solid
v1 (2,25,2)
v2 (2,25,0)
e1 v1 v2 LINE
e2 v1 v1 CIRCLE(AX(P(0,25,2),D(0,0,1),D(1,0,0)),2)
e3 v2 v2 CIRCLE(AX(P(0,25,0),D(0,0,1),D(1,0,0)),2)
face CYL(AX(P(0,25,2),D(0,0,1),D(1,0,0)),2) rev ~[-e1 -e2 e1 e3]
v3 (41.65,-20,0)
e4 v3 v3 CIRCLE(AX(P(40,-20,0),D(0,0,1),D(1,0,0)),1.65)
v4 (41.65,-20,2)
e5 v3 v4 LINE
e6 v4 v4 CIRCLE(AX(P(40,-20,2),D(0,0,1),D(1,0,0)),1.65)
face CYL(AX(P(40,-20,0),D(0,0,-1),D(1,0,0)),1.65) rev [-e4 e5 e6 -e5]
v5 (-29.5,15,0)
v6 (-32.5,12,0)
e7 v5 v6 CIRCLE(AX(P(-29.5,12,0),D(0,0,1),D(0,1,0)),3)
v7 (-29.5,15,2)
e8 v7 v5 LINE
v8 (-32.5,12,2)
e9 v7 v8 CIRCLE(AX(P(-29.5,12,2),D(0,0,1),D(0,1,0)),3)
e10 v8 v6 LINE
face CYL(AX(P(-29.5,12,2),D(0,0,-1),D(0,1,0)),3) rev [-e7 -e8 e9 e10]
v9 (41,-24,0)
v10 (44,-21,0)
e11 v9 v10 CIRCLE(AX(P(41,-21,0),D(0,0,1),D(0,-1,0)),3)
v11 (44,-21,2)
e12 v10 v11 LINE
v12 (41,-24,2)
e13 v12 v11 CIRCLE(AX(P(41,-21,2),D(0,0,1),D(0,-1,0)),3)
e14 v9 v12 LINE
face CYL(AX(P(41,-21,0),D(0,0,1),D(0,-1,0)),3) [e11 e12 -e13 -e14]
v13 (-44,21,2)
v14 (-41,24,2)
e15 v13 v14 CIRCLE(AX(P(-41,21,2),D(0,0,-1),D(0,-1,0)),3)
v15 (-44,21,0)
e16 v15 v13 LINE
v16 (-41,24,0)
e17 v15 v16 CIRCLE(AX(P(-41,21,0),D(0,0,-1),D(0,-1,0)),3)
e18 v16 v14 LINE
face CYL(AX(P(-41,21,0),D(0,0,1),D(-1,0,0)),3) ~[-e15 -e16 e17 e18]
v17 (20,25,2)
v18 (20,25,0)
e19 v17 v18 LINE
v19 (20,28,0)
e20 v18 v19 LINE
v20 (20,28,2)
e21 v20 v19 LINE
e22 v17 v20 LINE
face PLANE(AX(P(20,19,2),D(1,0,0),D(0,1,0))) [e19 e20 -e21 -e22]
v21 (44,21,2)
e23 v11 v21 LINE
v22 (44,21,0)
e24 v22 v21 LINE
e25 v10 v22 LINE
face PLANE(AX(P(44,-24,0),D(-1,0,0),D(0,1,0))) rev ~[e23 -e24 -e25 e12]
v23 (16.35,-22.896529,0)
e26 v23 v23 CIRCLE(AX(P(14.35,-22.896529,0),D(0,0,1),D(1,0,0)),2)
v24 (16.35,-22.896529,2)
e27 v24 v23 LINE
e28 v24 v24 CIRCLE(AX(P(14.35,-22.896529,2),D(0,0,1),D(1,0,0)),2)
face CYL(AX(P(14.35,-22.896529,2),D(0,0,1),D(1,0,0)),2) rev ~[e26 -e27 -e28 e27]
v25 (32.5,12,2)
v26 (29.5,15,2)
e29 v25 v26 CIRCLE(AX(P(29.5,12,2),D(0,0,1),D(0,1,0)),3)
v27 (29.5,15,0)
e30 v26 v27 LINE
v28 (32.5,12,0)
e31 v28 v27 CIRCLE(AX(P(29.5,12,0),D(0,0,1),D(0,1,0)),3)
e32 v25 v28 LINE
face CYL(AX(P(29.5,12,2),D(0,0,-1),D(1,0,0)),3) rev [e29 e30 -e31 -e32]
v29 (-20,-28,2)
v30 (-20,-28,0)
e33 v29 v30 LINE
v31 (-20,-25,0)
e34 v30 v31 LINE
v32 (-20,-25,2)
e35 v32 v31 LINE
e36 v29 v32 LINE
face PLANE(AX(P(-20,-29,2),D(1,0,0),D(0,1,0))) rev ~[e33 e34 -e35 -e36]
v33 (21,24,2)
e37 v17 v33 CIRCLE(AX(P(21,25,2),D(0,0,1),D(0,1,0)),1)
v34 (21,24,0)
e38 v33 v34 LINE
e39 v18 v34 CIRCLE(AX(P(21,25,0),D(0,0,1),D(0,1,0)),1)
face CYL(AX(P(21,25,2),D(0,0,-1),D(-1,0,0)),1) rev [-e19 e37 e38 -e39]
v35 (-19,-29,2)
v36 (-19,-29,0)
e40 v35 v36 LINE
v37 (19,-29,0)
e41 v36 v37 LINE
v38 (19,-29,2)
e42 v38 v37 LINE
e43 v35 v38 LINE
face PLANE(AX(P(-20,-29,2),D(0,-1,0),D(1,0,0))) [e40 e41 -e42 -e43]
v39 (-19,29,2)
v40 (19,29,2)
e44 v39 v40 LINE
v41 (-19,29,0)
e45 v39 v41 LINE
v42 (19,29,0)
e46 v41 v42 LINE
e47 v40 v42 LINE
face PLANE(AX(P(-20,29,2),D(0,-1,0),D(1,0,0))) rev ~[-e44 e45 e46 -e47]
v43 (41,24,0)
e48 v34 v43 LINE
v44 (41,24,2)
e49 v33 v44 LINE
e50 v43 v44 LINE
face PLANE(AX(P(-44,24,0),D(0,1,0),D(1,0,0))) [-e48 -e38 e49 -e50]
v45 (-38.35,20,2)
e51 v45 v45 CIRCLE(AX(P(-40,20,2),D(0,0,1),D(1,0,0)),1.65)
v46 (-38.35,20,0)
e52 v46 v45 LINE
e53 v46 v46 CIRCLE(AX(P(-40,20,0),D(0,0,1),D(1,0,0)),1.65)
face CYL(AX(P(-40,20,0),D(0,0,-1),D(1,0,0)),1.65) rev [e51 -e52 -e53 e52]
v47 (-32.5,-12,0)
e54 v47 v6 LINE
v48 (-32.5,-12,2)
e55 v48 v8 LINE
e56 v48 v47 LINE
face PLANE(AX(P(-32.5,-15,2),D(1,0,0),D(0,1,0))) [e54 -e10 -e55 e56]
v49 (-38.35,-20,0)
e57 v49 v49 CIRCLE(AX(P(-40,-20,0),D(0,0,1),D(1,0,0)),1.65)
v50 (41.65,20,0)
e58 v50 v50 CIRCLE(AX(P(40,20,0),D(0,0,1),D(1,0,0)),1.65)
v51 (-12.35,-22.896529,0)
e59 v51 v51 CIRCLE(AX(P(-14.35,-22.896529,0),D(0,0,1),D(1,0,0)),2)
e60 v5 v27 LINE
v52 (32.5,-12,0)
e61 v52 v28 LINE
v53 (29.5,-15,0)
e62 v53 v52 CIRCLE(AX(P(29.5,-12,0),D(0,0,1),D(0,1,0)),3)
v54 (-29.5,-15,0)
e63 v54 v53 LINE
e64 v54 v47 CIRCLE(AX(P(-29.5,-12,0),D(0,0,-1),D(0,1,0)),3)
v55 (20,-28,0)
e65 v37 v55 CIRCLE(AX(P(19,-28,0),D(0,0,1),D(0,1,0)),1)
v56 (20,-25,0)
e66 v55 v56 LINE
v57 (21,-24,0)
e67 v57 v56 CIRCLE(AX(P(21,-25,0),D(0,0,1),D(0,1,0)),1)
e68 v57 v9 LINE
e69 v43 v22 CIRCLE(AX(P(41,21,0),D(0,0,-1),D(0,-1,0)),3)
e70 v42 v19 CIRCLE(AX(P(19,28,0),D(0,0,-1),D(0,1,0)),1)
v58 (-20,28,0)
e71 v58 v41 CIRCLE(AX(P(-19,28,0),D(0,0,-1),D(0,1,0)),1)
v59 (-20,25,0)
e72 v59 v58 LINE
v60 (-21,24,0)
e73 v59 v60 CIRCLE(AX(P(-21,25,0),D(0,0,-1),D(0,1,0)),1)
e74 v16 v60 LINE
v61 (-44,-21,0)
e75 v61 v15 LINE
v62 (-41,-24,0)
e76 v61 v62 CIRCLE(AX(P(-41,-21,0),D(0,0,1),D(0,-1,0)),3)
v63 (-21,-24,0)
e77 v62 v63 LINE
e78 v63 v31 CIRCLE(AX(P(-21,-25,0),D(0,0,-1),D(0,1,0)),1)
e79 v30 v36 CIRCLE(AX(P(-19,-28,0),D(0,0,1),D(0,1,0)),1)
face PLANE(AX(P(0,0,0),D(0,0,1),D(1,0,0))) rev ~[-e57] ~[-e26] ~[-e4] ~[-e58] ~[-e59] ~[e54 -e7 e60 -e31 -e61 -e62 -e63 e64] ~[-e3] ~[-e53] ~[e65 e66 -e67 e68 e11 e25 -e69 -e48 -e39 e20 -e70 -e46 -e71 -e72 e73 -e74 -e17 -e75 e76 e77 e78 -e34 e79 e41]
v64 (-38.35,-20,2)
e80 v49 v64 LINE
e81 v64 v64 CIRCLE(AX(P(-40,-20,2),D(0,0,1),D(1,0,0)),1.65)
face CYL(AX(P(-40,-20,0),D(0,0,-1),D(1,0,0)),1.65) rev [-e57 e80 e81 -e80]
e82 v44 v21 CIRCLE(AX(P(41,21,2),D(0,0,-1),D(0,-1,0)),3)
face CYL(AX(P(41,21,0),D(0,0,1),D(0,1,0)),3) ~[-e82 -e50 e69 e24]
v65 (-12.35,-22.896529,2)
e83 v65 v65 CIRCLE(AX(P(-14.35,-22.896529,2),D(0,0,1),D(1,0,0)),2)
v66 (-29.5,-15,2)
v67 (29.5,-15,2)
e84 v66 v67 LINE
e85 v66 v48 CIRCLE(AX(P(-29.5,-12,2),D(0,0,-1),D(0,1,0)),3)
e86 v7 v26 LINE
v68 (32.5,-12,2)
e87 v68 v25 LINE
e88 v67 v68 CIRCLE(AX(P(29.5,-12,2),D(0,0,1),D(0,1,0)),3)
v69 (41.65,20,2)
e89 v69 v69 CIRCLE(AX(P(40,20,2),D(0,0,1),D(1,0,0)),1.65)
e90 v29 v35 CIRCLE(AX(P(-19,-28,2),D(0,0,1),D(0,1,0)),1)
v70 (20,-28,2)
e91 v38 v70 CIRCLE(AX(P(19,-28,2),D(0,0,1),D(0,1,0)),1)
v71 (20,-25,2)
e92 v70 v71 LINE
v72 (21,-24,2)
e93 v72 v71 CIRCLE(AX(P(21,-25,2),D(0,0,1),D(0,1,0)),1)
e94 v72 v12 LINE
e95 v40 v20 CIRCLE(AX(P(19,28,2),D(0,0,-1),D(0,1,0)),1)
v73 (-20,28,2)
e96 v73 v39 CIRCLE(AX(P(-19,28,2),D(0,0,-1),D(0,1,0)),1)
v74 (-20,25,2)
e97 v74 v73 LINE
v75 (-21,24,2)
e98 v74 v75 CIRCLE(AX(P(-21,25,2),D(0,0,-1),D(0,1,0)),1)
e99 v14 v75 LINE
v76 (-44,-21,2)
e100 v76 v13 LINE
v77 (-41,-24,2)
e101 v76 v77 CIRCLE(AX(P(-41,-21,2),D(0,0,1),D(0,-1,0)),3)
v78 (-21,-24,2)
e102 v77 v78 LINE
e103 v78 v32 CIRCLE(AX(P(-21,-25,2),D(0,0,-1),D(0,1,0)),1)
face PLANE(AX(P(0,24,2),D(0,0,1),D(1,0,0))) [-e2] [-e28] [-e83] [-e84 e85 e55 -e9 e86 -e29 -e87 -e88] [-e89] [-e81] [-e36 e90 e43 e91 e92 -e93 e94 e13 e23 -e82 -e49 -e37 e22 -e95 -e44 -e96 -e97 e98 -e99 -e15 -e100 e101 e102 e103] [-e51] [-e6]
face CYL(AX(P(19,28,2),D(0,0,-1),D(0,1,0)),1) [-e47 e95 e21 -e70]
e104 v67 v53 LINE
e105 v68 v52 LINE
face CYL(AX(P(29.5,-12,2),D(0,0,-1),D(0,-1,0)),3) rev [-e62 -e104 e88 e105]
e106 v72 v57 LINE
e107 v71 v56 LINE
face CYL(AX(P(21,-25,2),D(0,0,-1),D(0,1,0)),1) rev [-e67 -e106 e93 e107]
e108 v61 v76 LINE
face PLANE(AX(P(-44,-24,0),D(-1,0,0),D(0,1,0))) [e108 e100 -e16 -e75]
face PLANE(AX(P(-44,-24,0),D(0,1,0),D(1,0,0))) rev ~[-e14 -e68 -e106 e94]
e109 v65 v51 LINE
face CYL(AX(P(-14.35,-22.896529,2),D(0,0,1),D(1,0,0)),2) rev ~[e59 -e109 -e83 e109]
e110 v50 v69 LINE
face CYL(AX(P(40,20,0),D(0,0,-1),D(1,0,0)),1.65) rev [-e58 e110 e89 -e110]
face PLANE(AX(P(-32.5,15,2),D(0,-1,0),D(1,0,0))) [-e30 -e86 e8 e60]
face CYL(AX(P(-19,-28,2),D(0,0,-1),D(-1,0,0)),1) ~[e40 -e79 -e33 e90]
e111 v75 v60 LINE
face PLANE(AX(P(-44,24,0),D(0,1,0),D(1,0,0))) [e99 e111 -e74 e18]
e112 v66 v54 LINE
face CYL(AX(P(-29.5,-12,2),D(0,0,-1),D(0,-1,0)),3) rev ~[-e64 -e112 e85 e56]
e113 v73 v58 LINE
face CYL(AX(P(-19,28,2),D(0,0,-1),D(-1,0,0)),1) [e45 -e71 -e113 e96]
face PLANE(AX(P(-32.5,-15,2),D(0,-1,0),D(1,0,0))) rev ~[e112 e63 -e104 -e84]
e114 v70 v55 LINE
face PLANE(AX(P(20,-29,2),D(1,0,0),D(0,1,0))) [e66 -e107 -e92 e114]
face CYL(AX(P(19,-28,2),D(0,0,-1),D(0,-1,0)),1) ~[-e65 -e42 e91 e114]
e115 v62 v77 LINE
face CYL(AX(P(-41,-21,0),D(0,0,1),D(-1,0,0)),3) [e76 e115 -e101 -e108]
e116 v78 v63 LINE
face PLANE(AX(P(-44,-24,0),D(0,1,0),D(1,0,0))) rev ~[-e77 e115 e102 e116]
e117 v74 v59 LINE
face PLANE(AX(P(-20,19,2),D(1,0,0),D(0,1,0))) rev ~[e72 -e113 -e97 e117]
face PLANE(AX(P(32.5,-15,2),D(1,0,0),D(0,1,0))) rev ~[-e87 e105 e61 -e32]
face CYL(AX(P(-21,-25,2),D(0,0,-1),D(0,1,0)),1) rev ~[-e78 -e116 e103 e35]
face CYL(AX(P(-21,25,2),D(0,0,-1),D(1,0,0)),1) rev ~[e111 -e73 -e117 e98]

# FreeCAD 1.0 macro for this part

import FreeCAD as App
import Part
import Sketcher


def edges_at(feature, points):
    """Names of the edges that pass closest to the given points."""
    edges = feature.Shape.Edges
    near = lambda p: min(range(len(edges)), key=lambda i: edges[i].distToShape(Part.Vertex(*p))[0])
    return sorted({f"Edge{near(p) + 1}" for p in points})


def add_polygon(sketch, points):
    """Adds a closed chain of lines whose ends are joined by coincident constraints."""
    first, n = sketch.GeometryCount, len(points)
    for a, b in zip(points, points[1:] + points[:1]):
        sketch.addGeometry(Part.LineSegment(App.Vector(*a, 0), App.Vector(*b, 0)), False)
    for i in range(n):
        sketch.addConstraint(Sketcher.Constraint("Coincident", first + i, 2, first + (i + 1) % n, 1))

doc = App.newDocument("Part")
body = doc.addObject("PartDesign::Body", "Body")

# Sketch on XY plane
sketch1 = doc.addObject("Sketcher::SketchObject", "Sketch")
body.addObject(sketch1)
sketch1.AttachmentSupport = (doc.XY_Plane, [""])
sketch1.MapMode = "FlatFace"
add_polygon(sketch1, [(-44, 24), (-44, -24), (44, -24), (44, 24)])  # lines 0-3
sketch1.addGeometry(Part.Circle(App.Vector(-40, -20, 0), App.Vector(0, 0, 1), 1.6), False)  # 4
sketch1.addGeometry(Part.Circle(App.Vector(40, -20, 0), App.Vector(0, 0, 1), 1.6), False)  # 5
sketch1.addGeometry(Part.Circle(App.Vector(-40, 20, 0), App.Vector(0, 0, 1), 1.6), False)  # 6
sketch1.addGeometry(Part.Circle(App.Vector(40, 20, 0), App.Vector(0, 0, 1), 1.6), False)  # 7
sketch1.addConstraint(Sketcher.Constraint("Vertical", 0))
sketch1.addConstraint(Sketcher.Constraint("Horizontal", 1))
sketch1.addConstraint(Sketcher.Constraint("Vertical", 2))
sketch1.addConstraint(Sketcher.Constraint("Horizontal", 3))
sketch1.addConstraint(Sketcher.Constraint("Equal", 4, 5))
sketch1.addConstraint(Sketcher.Constraint("Equal", 5, 6))
sketch1.addConstraint(Sketcher.Constraint("Equal", 6, 7))
sketch1.addConstraint(Sketcher.Constraint("Symmetric", 5, 3, 6, 3, -1, 1))
sketch1.addConstraint(Sketcher.Constraint("Symmetric", 4, 3, 7, 3, -1, 1))
sketch1.addConstraint(Sketcher.Constraint("Symmetric", 0, 2, 2, 2, -1, 1))
sketch1.addConstraint(Sketcher.Constraint("Symmetric", 4, 3, 5, 3, -2))
sketch1.addConstraint(Sketcher.Constraint("Diameter", 4, 3.3))
sketch1.addConstraint(Sketcher.Constraint("DistanceX", 1, 1, 1, 2, 88.0))
sketch1.addConstraint(Sketcher.Constraint("DistanceY", 0, 2, 0, 1, 48.0))
sketch1.addConstraint(Sketcher.Constraint("DistanceX", 4, 3, -1, 1, 40.0))
sketch1.addConstraint(Sketcher.Constraint("DistanceY", 4, 3, -1, 1, 20.0))
pad1 = doc.addObject("PartDesign::Pad", "Pad")
body.addObject(pad1)
pad1.Profile = sketch1
pad1.Length = 2
doc.recompute()

fillet = doc.addObject("PartDesign::Fillet", "Fillet")
body.addObject(fillet)
fillet.Base = (pad1, edges_at(pad1, [
    (-44, 24, 1),
    (44, 24, 1),
    (44, -24, 1),
    (-44, -24, 1),
]))
fillet.Radius = 3

# Sketch on XY plane
sketch2 = doc.addObject("Sketcher::SketchObject", "Sketch001")
body.addObject(sketch2)
sketch2.AttachmentSupport = (doc.XY_Plane, [""])
sketch2.MapMode = "FlatFace"
sketch2.AttachmentOffset = App.Placement(App.Vector(0, 0, 2), App.Rotation())
add_polygon(sketch2, [(-20, 29), (-20, 19), (20, 19), (20, 29)])  # lines 0-3
add_polygon(sketch2, [(-20, -19), (-20, -29), (20, -29), (20, -19)])  # lines 4-7
sketch2.addConstraint(Sketcher.Constraint("Vertical", 0))
sketch2.addConstraint(Sketcher.Constraint("Horizontal", 1))
sketch2.addConstraint(Sketcher.Constraint("Vertical", 2))
sketch2.addConstraint(Sketcher.Constraint("Horizontal", 3))
sketch2.addConstraint(Sketcher.Constraint("Vertical", 4))
sketch2.addConstraint(Sketcher.Constraint("Horizontal", 5))
sketch2.addConstraint(Sketcher.Constraint("Vertical", 6))
sketch2.addConstraint(Sketcher.Constraint("Horizontal", 7))
sketch2.addConstraint(Sketcher.Constraint("Symmetric", 2, 2, 4, 2, -1, 1))
sketch2.addConstraint(Sketcher.Constraint("Symmetric", 0, 2, 6, 2, -1, 1))
sketch2.addConstraint(Sketcher.Constraint("Vertical", 3, 2, 4, 2))
sketch2.addConstraint(Sketcher.Constraint("DistanceX", 1, 1, 1, 2, 40.0))
sketch2.addConstraint(Sketcher.Constraint("DistanceY", 0, 2, 0, 1, 10.0))
sketch2.addConstraint(Sketcher.Constraint("DistanceY", -1, 1, 0, 2, 19.0))
pad2 = doc.addObject("PartDesign::Pad", "Pad001")
body.addObject(pad2)
pad2.Profile = sketch2
pad2.Length = 2
pad2.Reversed = True

# Sketch on XY plane
sketch3 = doc.addObject("Sketcher::SketchObject", "Sketch002")
body.addObject(sketch3)
sketch3.AttachmentSupport = (doc.XY_Plane, [""])
sketch3.MapMode = "FlatFace"
sketch3.AttachmentOffset = App.Placement(App.Vector(0, 0, 2), App.Rotation())
sketch3.addGeometry(Part.Circle(App.Vector(0, 25, 0), App.Vector(0, 0, 1), 2), False)
sketch3.addGeometry(Part.Circle(App.Vector(-14.3, -22.9, 0), App.Vector(0, 0, 1), 2), False)
sketch3.addGeometry(Part.Circle(App.Vector(14.3, -22.9, 0), App.Vector(0, 0, 1), 2), False)
sketch3.addConstraint(Sketcher.Constraint("Equal", 0, 1))
sketch3.addConstraint(Sketcher.Constraint("Equal", 1, 2))
sketch3.addConstraint(Sketcher.Constraint("Symmetric", 1, 3, 2, 3, -2))
sketch3.addConstraint(Sketcher.Constraint("PointOnObject", 0, 3, -2))
sketch3.addConstraint(Sketcher.Constraint("Diameter", 0, 4.0))
sketch3.addConstraint(Sketcher.Constraint("DistanceY", -1, 1, 0, 3, 25.0))
sketch3.addConstraint(Sketcher.Constraint("DistanceX", 1, 3, 2, 3, 28.7))
sketch3.addConstraint(Sketcher.Constraint("DistanceY", 1, 3, -1, 1, 22.896529))
pocket1 = doc.addObject("PartDesign::Pocket", "Pocket")
body.addObject(pocket1)
pocket1.Profile = sketch3
pocket1.Length = 2

# Sketch on XY plane
sketch4 = doc.addObject("Sketcher::SketchObject", "Sketch003")
body.addObject(sketch4)
sketch4.AttachmentSupport = (doc.XY_Plane, [""])
sketch4.MapMode = "FlatFace"
sketch4.AttachmentOffset = App.Placement(App.Vector(0, 0, 2), App.Rotation())
add_polygon(sketch4, [(-32, 15), (-32, -15), (32, -15), (32, 15)])  # lines 0-3
sketch4.addConstraint(Sketcher.Constraint("Vertical", 0))
sketch4.addConstraint(Sketcher.Constraint("Horizontal", 1))
sketch4.addConstraint(Sketcher.Constraint("Vertical", 2))
sketch4.addConstraint(Sketcher.Constraint("Horizontal", 3))
sketch4.addConstraint(Sketcher.Constraint("Symmetric", 0, 2, 2, 2, -1, 1))
sketch4.addConstraint(Sketcher.Constraint("DistanceX", 1, 1, 1, 2, 65.0))
sketch4.addConstraint(Sketcher.Constraint("DistanceY", 0, 2, 0, 1, 30.0))
pocket2 = doc.addObject("PartDesign::Pocket", "Pocket001")
body.addObject(pocket2)
pocket2.Profile = sketch4
pocket2.Length = 2
doc.recompute()

fillet2 = doc.addObject("PartDesign::Fillet", "Fillet001")
body.addObject(fillet2)
fillet2.Base = (pocket2, edges_at(pocket2, [
    (-32.5, -15, 1),
    (-32.5, 15, 1),
    (32.5, 15, 1),
    (32.5, -15, 1),
]))
fillet2.Radius = 3
doc.recompute()

fillet3 = doc.addObject("PartDesign::Fillet", "Fillet002")
body.addObject(fillet3)
fillet3.Base = (fillet2, edges_at(fillet2, [
    (20, 24, 1),
    (-20, 24, 1),
    (20, 29, 1),
    (-20, 29, 1),
    (20, -24, 1),
    (-20, -24, 1),
    (-20, -29, 1),
    (20, -29, 1),
]))
fillet3.Radius = 1

doc.recompute()
